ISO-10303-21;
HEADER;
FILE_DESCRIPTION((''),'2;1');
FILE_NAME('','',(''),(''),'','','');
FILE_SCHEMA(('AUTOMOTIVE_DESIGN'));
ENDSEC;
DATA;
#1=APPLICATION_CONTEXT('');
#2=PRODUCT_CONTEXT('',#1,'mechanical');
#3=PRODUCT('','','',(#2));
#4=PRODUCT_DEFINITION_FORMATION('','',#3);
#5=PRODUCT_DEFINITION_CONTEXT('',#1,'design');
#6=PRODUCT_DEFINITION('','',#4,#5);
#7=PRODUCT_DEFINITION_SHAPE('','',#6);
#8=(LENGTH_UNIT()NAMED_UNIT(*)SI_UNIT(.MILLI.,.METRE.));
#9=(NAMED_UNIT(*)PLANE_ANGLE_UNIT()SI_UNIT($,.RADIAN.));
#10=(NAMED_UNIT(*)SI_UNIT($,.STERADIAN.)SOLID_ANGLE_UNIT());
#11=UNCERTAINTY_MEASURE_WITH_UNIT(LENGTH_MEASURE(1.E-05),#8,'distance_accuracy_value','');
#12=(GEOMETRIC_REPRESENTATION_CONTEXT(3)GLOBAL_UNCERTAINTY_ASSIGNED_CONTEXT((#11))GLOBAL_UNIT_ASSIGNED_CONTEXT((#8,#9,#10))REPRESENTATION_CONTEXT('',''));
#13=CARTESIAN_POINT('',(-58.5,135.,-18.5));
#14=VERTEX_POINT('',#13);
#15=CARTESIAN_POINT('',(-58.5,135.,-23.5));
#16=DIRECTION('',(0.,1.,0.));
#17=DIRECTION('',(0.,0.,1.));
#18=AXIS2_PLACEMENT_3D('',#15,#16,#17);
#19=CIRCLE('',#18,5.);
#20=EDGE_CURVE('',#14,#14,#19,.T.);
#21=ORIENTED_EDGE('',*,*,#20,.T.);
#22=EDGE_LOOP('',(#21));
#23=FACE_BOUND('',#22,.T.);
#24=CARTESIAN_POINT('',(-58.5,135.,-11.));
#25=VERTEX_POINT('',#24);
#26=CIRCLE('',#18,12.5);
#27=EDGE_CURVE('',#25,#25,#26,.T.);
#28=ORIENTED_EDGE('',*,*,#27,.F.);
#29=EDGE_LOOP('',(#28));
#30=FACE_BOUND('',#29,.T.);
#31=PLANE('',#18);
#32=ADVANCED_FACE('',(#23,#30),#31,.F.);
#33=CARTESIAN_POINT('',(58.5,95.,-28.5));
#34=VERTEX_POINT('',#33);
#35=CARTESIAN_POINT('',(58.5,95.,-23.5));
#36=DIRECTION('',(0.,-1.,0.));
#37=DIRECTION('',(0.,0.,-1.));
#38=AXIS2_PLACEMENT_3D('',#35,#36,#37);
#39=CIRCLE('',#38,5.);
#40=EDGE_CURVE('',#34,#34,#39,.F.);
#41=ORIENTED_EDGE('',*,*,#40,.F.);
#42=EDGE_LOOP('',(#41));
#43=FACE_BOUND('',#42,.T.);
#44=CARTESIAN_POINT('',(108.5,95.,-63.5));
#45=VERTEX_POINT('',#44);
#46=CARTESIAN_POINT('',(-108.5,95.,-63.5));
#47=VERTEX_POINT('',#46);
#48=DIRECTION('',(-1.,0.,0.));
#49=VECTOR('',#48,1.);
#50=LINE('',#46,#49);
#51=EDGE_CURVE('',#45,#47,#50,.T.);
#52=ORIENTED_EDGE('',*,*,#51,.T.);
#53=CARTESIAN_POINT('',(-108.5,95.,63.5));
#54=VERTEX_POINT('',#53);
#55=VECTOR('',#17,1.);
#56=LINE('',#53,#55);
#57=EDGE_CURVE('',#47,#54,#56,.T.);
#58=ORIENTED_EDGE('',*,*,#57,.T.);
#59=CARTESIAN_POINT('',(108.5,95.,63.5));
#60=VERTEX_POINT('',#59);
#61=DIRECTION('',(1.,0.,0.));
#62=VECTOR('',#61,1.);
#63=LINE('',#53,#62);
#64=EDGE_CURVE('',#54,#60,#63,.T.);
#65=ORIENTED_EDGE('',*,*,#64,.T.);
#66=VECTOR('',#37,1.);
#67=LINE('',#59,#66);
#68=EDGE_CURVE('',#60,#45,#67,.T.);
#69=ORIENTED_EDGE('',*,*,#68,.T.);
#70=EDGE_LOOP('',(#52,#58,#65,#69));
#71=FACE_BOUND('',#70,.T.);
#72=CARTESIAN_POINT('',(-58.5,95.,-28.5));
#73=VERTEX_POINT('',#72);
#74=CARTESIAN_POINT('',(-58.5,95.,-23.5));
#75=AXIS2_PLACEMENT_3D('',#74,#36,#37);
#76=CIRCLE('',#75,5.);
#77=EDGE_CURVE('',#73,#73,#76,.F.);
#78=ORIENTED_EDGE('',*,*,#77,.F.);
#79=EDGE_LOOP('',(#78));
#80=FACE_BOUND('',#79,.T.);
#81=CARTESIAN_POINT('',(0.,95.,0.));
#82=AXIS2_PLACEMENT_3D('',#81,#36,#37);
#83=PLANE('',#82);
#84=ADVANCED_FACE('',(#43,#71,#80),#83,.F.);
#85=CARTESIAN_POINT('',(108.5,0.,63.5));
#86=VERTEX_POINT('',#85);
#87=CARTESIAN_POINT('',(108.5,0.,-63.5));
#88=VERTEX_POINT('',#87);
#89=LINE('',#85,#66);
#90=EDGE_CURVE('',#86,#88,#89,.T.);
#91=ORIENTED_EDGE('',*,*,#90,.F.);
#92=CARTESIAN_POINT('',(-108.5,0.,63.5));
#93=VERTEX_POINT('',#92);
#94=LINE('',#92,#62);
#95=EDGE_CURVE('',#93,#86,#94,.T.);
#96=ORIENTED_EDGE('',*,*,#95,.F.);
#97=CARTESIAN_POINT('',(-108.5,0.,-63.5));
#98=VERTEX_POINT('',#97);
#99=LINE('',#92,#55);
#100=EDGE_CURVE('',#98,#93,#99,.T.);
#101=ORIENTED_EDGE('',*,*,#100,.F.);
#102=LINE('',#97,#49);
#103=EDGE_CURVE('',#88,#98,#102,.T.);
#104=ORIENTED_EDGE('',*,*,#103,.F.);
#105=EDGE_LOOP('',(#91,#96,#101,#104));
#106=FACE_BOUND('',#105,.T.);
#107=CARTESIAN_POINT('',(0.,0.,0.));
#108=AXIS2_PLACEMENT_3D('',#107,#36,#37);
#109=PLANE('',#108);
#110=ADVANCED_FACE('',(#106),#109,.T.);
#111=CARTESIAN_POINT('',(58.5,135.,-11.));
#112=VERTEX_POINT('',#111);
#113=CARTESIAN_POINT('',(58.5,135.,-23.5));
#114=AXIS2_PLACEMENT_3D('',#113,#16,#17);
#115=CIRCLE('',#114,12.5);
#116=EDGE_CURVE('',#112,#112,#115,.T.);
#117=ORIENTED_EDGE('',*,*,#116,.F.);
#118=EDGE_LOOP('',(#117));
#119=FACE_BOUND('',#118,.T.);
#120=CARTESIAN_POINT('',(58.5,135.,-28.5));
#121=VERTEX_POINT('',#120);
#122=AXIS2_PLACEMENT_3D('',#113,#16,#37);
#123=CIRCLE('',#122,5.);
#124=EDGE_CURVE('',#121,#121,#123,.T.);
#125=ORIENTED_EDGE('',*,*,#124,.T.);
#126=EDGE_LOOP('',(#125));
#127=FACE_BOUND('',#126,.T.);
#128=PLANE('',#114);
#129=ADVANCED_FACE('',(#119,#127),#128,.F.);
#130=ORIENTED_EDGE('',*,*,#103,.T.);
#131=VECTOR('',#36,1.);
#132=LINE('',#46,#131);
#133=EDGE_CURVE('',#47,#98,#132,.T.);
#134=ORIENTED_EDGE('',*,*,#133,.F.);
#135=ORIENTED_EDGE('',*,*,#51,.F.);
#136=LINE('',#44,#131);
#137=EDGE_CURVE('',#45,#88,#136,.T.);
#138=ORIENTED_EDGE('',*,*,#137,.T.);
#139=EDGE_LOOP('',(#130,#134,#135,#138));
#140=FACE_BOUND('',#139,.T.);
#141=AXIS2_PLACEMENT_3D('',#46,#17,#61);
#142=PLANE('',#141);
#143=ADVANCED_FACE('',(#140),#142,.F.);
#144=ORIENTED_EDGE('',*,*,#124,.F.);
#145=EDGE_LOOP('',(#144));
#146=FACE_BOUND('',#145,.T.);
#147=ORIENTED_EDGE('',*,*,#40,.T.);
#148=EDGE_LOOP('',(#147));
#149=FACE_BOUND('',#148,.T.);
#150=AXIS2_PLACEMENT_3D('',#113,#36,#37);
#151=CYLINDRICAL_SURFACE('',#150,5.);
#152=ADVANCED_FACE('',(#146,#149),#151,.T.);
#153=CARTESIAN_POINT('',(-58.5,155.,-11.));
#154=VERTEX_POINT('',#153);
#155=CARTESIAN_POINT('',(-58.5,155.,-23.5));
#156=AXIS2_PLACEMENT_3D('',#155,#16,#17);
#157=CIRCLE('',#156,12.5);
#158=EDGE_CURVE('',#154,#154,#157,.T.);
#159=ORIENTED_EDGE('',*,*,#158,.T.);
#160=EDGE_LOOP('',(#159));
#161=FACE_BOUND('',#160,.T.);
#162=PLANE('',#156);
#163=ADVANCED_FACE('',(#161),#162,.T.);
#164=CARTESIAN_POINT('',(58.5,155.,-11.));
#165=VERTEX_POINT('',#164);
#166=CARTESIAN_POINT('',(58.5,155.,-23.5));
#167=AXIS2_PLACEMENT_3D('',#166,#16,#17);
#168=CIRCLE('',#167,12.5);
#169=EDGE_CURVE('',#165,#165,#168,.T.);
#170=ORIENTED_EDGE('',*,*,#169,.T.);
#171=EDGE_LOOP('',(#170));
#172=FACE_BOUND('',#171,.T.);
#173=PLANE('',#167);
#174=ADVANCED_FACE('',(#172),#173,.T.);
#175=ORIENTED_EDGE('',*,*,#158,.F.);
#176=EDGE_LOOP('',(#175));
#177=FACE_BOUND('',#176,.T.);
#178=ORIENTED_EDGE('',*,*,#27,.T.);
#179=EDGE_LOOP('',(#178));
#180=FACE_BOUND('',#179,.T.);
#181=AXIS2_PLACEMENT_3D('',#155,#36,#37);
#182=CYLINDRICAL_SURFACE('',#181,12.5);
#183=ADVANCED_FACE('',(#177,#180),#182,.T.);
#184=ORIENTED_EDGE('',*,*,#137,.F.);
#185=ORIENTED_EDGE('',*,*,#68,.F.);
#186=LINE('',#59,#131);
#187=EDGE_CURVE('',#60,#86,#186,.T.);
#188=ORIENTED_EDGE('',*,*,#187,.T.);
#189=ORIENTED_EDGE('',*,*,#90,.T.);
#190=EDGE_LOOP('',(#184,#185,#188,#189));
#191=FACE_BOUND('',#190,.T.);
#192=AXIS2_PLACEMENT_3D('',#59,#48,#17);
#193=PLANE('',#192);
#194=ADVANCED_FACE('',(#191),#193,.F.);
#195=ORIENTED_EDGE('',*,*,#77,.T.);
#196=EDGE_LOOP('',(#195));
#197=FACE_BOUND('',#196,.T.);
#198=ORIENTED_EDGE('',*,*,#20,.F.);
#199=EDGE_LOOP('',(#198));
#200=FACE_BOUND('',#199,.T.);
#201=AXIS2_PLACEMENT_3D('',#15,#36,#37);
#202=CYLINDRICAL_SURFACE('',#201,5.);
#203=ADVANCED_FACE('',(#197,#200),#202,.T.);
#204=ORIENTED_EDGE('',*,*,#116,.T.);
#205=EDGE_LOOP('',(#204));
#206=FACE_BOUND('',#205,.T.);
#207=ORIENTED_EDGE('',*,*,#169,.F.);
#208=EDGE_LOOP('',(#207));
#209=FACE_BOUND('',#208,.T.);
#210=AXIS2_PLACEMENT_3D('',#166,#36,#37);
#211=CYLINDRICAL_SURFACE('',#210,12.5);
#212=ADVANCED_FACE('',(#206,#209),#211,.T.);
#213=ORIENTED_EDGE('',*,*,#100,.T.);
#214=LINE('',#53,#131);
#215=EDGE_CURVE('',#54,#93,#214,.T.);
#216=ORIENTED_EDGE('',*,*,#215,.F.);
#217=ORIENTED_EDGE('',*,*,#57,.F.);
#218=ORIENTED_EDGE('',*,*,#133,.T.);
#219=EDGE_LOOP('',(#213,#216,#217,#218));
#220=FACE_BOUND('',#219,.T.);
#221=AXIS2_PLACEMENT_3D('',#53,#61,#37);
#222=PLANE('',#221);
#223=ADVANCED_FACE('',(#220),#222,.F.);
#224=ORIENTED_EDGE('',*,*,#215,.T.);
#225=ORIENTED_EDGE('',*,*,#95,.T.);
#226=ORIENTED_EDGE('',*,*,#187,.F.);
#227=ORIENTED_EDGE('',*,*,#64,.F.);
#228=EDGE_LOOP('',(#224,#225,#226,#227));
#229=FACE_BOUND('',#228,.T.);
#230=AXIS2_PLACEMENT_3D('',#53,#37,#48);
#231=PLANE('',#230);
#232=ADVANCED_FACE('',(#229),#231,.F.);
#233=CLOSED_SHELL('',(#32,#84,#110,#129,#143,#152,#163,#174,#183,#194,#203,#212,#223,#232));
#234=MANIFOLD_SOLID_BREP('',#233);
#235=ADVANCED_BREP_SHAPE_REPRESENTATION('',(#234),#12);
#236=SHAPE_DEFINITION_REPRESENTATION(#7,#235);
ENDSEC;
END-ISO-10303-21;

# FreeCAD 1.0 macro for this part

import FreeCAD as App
import Part
import Sketcher

V = App.Vector
Q = App.Units.Quantity

doc = App.newDocument("Part")
body = doc.addObject("PartDesign::Body", "Body")

sketch1 = doc.addObject("Sketcher::SketchObject", "Sketch")
body.addObject(sketch1)
sketch1.AttachmentSupport = (doc.XZ_Plane, [""])
sketch1.MapMode = "FlatFace"
sketch1.addGeometry([
    Part.LineSegment(V(-108, -64, 0), V(-108, 64, 0)),
    Part.LineSegment(V(-108, 64, 0), V(108, 64, 0)),
    Part.LineSegment(V(108, 64, 0), V(108, -64, 0)),
    Part.LineSegment(V(108, -64, 0), V(-108, -64, 0)),
], False)
sketch1.addConstraint([
    Sketcher.Constraint("Coincident", 0, 2, 1, 1),
    Sketcher.Constraint("Coincident", 1, 2, 2, 1),
    Sketcher.Constraint("Coincident", 2, 2, 3, 1),
    Sketcher.Constraint("Coincident", 3, 2, 0, 1),
    Sketcher.Constraint("Vertical", 0),
    Sketcher.Constraint("Horizontal", 1),
    Sketcher.Constraint("Vertical", 2),
    Sketcher.Constraint("Horizontal", 3),
    Sketcher.Constraint("Symmetric", 0, 2, 2, 2, -1, 1),
    Sketcher.Constraint("DistanceX", 1, 1, 1, 2, Q("217 mm")),
    Sketcher.Constraint("DistanceY", 0, 1, 0, 2, Q("127 mm")),
])
pad1 = doc.addObject("PartDesign::Pad", "Pad")
body.addObject(pad1)
pad1.Profile = sketch1
pad1.Length = 95
pad1.Reversed = True

sketch2 = doc.addObject("Sketcher::SketchObject", "Sketch001")
body.addObject(sketch2)
sketch2.AttachmentSupport = (doc.XZ_Plane, [""])
sketch2.MapMode = "FlatFace"
sketch2.AttachmentOffset = App.Placement(V(0, 0, -95), App.Rotation())
sketch2.addGeometry([
    Part.Circle(V(-58, -24, 0), V(0, 0, 1), 5),
    Part.Circle(V(58, -24, 0), V(0, 0, 1), 5),
], False)
sketch2.addConstraint([
    Sketcher.Constraint("Equal", 0, 1),
    Sketcher.Constraint("Symmetric", 0, 3, 1, 3, -2),
    Sketcher.Constraint("Diameter", 0, Q("10 mm")),
    Sketcher.Constraint("DistanceX", 0, 3, 1, 3, Q("117 mm")),
    Sketcher.Constraint("DistanceY", 0, 3, -1, 1, Q("23.5 mm")),
])
pad2 = doc.addObject("PartDesign::Pad", "Pad001")
body.addObject(pad2)
pad2.Profile = sketch2
pad2.Length = 40
pad2.Reversed = True

sketch3 = doc.addObject("Sketcher::SketchObject", "Sketch002")
body.addObject(sketch3)
sketch3.AttachmentSupport = (doc.XZ_Plane, [""])
sketch3.MapMode = "FlatFace"
sketch3.AttachmentOffset = App.Placement(V(0, 0, -135), App.Rotation())
sketch3.addGeometry([
    Part.Circle(V(-58, -24, 0), V(0, 0, 1), 12),
    Part.Circle(V(58, -24, 0), V(0, 0, 1), 12),
], False)
sketch3.addConstraint([
    Sketcher.Constraint("Equal", 0, 1),
    Sketcher.Constraint("Symmetric", 0, 3, 1, 3, -2),
    Sketcher.Constraint("Diameter", 0, Q("25 mm")),
    Sketcher.Constraint("DistanceX", 0, 3, 1, 3, Q("117 mm")),
    Sketcher.Constraint("DistanceY", 0, 3, -1, 1, Q("23.5 mm")),
])
pad3 = doc.addObject("PartDesign::Pad", "Pad002")
body.addObject(pad3)
pad3.Profile = sketch3
pad3.Length = 20
pad3.Reversed = True

doc.recompute()
